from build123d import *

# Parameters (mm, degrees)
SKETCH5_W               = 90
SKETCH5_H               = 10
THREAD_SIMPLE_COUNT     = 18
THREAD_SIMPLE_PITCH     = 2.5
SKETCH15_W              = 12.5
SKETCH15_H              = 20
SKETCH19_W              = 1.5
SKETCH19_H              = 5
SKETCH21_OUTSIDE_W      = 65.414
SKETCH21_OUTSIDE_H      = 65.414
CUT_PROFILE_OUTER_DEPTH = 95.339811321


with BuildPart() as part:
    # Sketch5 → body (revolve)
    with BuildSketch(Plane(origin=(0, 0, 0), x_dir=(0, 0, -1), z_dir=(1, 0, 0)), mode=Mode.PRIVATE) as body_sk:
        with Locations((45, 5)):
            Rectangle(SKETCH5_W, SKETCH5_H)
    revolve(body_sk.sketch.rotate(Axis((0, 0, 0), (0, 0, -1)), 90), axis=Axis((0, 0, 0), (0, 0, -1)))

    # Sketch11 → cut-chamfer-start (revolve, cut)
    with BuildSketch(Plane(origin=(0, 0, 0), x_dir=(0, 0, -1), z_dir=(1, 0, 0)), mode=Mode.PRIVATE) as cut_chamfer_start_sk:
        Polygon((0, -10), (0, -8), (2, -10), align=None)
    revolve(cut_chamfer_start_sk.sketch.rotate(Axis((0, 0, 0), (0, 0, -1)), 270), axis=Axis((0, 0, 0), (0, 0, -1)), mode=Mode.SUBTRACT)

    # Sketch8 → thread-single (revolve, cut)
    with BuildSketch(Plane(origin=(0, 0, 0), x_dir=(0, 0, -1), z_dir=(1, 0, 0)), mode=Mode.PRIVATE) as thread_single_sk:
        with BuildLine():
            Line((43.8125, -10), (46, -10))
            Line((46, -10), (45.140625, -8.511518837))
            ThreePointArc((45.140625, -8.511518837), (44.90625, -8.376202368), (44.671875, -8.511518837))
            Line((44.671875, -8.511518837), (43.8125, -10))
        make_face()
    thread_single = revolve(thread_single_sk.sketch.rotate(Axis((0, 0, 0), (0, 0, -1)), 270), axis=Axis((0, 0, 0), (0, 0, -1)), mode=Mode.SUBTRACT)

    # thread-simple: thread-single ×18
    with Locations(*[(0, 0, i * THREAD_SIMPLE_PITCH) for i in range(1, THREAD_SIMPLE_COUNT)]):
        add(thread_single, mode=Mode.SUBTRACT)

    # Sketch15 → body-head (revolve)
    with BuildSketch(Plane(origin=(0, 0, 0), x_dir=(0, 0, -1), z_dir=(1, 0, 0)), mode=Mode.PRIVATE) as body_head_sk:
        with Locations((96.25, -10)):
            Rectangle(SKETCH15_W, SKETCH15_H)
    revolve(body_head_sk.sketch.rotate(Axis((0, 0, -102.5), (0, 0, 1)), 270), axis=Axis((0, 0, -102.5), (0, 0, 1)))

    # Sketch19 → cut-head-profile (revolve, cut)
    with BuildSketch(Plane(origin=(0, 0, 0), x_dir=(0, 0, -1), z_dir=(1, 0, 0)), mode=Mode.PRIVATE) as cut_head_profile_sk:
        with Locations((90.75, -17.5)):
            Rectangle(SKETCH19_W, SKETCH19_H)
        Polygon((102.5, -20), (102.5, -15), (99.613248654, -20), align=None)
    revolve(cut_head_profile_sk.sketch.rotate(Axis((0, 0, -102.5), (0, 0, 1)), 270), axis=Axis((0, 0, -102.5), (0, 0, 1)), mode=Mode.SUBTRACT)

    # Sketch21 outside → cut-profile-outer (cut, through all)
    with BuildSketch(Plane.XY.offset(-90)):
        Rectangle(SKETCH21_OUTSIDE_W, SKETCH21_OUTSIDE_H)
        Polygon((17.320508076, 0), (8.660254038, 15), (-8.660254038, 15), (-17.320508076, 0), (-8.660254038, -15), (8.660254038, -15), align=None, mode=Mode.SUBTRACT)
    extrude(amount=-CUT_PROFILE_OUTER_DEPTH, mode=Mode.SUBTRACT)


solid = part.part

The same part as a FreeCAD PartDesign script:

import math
import FreeCAD as App
import Part
import Sketcher

V = App.Vector
Q = App.Units.Quantity


def add_polygon(sketch, points):
    """Adds a closed chain of lines whose ends are joined by coincident constraints."""
    first, n = sketch.GeometryCount, len(points)
    for a, b in zip(points, points[1:] + points[:1]):
        sketch.addGeometry(Part.LineSegment(App.Vector(*a, 0), App.Vector(*b, 0)), False)
    for i in range(n):
        sketch.addConstraint(Sketcher.Constraint("Coincident", first + i, 2, first + (i + 1) % n, 1))

doc = App.newDocument("Part")
body = doc.addObject("PartDesign::Body", "Body")

# Sketch on YZ plane
sketch1 = doc.addObject("Sketcher::SketchObject", "Sketch")
body.addObject(sketch1)
sketch1.AttachmentSupport = (doc.YZ_Plane, [""])
sketch1.MapMode = "FlatFace"
add_polygon(sketch1, [(10, 0), (0, 0), (0, -90), (10, -90)])  # lines 0-3
sketch1.addConstraint([
    Sketcher.Constraint("Horizontal", 0),
    Sketcher.Constraint("Vertical", 1),
    Sketcher.Constraint("Horizontal", 2),
    Sketcher.Constraint("Vertical", 3),
    Sketcher.Constraint("Coincident", 0, 2, -1, 1),
    Sketcher.Constraint("DistanceX", 0, 2, 0, 1, 10.0),
    Sketcher.Constraint("DistanceY", 1, 2, 1, 1, 90.0),
])
revolution = doc.addObject("PartDesign::Revolution", "Revolution")
body.addObject(revolution)
revolution.Profile = sketch1
revolution.ReferenceAxis = (sketch1, ["V_Axis"])
revolution.Angle = 360

# Sketch on YZ plane
sketch2 = doc.addObject("Sketcher::SketchObject", "Sketch001")
body.addObject(sketch2)
sketch2.AttachmentSupport = (doc.YZ_Plane, [""])
sketch2.MapMode = "FlatFace"
add_polygon(sketch2, [(-8, 0), (-10, 0), (-10, -2)])  # lines 0-2
sketch2.addConstraint([
    Sketcher.Constraint("Horizontal", 0),
    Sketcher.Constraint("Vertical", 1),
    Sketcher.Constraint("PointOnObject", 0, 2, -1),
    Sketcher.Constraint("Equal", 0, 1),
    Sketcher.Constraint("DistanceX", 0, 2, 0, 1, 2.0),
    Sketcher.Constraint("DistanceX", 0, 2, -1, 1, 10.0),
])
groove = doc.addObject("PartDesign::Groove", "Groove")
body.addObject(groove)
groove.Profile = sketch2
groove.ReferenceAxis = (sketch2, ["V_Axis"])
groove.Angle = 360

# Sketch on YZ plane
sketch3 = doc.addObject("Sketcher::SketchObject", "Sketch002")
body.addObject(sketch3)
sketch3.AttachmentSupport = (doc.YZ_Plane, [""])
sketch3.MapMode = "FlatFace"
sketch3.addGeometry([
    Part.LineSegment(V(-10, -43.81, 0), V(-10, -46, 0)),
    Part.LineSegment(V(-10, -46, 0), V(-8.51, -45.14, 0)),
    Part.ArcOfCircle(Part.Circle(V(-8.65, -44.91, 0), V(0, 0, 1), 0.27), math.radians(-60), math.radians(60)),
    Part.LineSegment(V(-8.51, -44.67, 0), V(-10, -43.81, 0)),
], False)
sketch3.addConstraint([
    Sketcher.Constraint("Coincident", 0, 2, 1, 1),
    Sketcher.Constraint("Tangent", 1, 2, 2, 1),
    Sketcher.Constraint("Tangent", 2, 2, 3, 1),
    Sketcher.Constraint("Coincident", 3, 2, 0, 1),
    Sketcher.Constraint("Vertical", 0),
    Sketcher.Constraint("Vertical", 1, 2, 2, 2),
    Sketcher.Constraint("Angle", 1, Q("30 deg")),
    Sketcher.Constraint("DistanceX", 0, 2, -1, 1, 10.0),
    Sketcher.Constraint("DistanceY", 0, 2, -1, 1, 46.0),
    Sketcher.Constraint("DistanceY", 0, 2, 0, 1, 2.1875),
    Sketcher.Constraint("Radius", 2, 0.270633),
])
groove2 = doc.addObject("PartDesign::Groove", "Groove001")
body.addObject(groove2)
groove2.Profile = sketch3
groove2.ReferenceAxis = (sketch3, ["V_Axis"])
groove2.Angle = 360
doc.recompute()

linearpattern = doc.addObject("PartDesign::LinearPattern", "LinearPattern")
body.addObject(linearpattern)
linearpattern.Originals = [groove2]
linearpattern.Direction = (doc.Z_Axis, [""])
linearpattern.Mode = "offset"
linearpattern.Offset = 2.5
linearpattern.Occurrences = 18
body.Tip = linearpattern

# Sketch on YZ plane
sketch4 = doc.addObject("Sketcher::SketchObject", "Sketch003")
body.addObject(sketch4)
sketch4.AttachmentSupport = (doc.YZ_Plane, [""])
sketch4.MapMode = "FlatFace"
add_polygon(sketch4, [(0, -90), (-20, -90), (-20, -102), (0, -102)])  # lines 0-3
sketch4.addConstraint([
    Sketcher.Constraint("Horizontal", 0),
    Sketcher.Constraint("Vertical", 1),
    Sketcher.Constraint("Horizontal", 2),
    Sketcher.Constraint("Vertical", 3),
    Sketcher.Constraint("PointOnObject", 2, 2, -2),
    Sketcher.Constraint("DistanceX", 0, 2, 0, 1, 20.0),
    Sketcher.Constraint("DistanceY", 1, 2, 1, 1, 12.5),
    Sketcher.Constraint("DistanceY", 0, 2, -1, 1, 90.0),
])
revolution2 = doc.addObject("PartDesign::Revolution", "Revolution001")
body.addObject(revolution2)
revolution2.Profile = sketch4
revolution2.ReferenceAxis = (sketch4, ["V_Axis"])
revolution2.Angle = 360

# Sketch on YZ plane
sketch5 = doc.addObject("Sketcher::SketchObject", "Sketch004")
body.addObject(sketch5)
sketch5.AttachmentSupport = (doc.YZ_Plane, [""])
sketch5.MapMode = "FlatFace"
add_polygon(sketch5, [(-15, -90), (-20, -90), (-20, -91.5), (-15, -91.5)])  # lines 0-3
add_polygon(sketch5, [(-20, -102.5), (-15, -102.5), (-20, -99.6)])  # lines 4-6
sketch5.addConstraint([
    Sketcher.Constraint("Horizontal", 0),
    Sketcher.Constraint("Vertical", 1),
    Sketcher.Constraint("Horizontal", 2),
    Sketcher.Constraint("Vertical", 3),
    Sketcher.Constraint("Horizontal", 4),
    Sketcher.Constraint("Vertical", 6),
    Sketcher.Constraint("Vertical", 3, 2, 4, 2),
    Sketcher.Constraint("Vertical", 1, 2, 5, 2),
    Sketcher.Constraint("DistanceX", 0, 2, 0, 1, 5.0),
    Sketcher.Constraint("Angle", 5, Q("150 deg")),
    Sketcher.Constraint("DistanceY", 1, 2, 1, 1, 1.5),
    Sketcher.Constraint("DistanceX", 0, 2, -1, 1, 20.0),
    Sketcher.Constraint("DistanceY", 0, 2, -1, 1, 90.0),
    Sketcher.Constraint("DistanceY", 4, 2, 2, 2, 11.0),
])
groove3 = doc.addObject("PartDesign::Groove", "Groove002")
body.addObject(groove3)
groove3.Profile = sketch5
groove3.ReferenceAxis = (sketch5, ["V_Axis"])
groove3.Angle = 360

# Sketch on XY plane
sketch6 = doc.addObject("Sketcher::SketchObject", "Sketch005")
body.addObject(sketch6)
sketch6.AttachmentSupport = (doc.XY_Plane, [""])
sketch6.MapMode = "FlatFace"
sketch6.AttachmentOffset = App.Placement(V(0, 0, -90), App.Rotation())
add_polygon(sketch6, [(-33, 33), (-33, -33), (33, -33), (33, 33)])  # lines 0-3
add_polygon(sketch6, [(9, 15), (17, 0), (9, -15), (-9, -15), (-17, 0), (-9, 15)])  # lines 4-9
sketch6.addConstraint([
    Sketcher.Constraint("Vertical", 0),
    Sketcher.Constraint("Horizontal", 1),
    Sketcher.Constraint("Vertical", 2),
    Sketcher.Constraint("Horizontal", 3),
    Sketcher.Constraint("Horizontal", 6),
    Sketcher.Constraint("Horizontal", 9),
    Sketcher.Constraint("Symmetric", 0, 2, 2, 2, -1, 1),
    Sketcher.Constraint("Symmetric", 4, 2, 7, 2, -1, 1),
    Sketcher.Constraint("Symmetric", 5, 2, 8, 2, -1, 1),
    Sketcher.Constraint("PointOnObject", 4, 2, -1),
    Sketcher.Constraint("Parallel", 4, 7),
    Sketcher.Constraint("Vertical", 6, 2, 8, 2),
    Sketcher.Constraint("Equal", 3, 0),
    Sketcher.Constraint("Angle", 4, Q("-60 deg")),
    Sketcher.Constraint("DistanceY", 5, 2, -1, 1, 15.0),
    Sketcher.Constraint("DistanceX", 1, 1, 1, 2, 65.414),
    Sketcher.Constraint("DistanceX", 6, 2, 6, 1, 17.320508),
])
pocket1 = doc.addObject("PartDesign::Pocket", "Pocket")
body.addObject(pocket1)
pocket1.Profile = sketch6
pocket1.Type = "ThroughAll"

doc.recompute()
